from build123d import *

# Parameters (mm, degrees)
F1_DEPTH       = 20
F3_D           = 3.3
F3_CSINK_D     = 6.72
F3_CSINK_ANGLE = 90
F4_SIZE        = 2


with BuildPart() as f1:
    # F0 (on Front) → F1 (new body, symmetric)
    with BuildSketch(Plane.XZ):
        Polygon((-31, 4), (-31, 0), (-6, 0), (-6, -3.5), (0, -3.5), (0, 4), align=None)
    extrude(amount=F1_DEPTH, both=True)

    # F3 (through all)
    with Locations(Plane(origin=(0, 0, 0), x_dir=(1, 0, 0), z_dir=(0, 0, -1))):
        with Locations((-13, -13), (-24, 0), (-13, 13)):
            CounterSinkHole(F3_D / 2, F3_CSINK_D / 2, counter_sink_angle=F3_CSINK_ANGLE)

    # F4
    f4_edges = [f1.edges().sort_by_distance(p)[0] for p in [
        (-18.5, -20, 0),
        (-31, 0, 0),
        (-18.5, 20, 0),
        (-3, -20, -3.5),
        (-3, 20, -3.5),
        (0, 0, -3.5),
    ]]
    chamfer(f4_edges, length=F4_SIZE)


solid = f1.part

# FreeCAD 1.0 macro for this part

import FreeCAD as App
import Part
import Sketcher
from FreeCAD import Vector
Q = App.Units.Quantity


def edges_at(feature, points):
    """Names of the edges that pass closest to the given points."""
    edges = feature.Shape.Edges
    near = lambda p: min(range(len(edges)), key=lambda i: edges[i].distToShape(Part.Vertex(*p))[0])
    return sorted({f"Edge{near(p) + 1}" for p in points})

doc = App.newDocument("Part")
body = doc.addObject("PartDesign::Body", "Body")

sketch1 = body.newObject("Sketcher::SketchObject", "Sketch")
sketch1.AttachmentSupport = (doc.getObject("XZ_Plane"), [""])
sketch1.MapMode = "FlatFace"
sketch1.addGeometry(Part.LineSegment(Vector(-31, 4, 0), Vector(-31, 0, 0)), False)
sketch1.addGeometry(Part.LineSegment(Vector(-31, 0, 0), Vector(-6, 0, 0)), False)
sketch1.addGeometry(Part.LineSegment(Vector(-6, 0, 0), Vector(-6, -3.5, 0)), False)
sketch1.addGeometry(Part.LineSegment(Vector(-6, -3.5, 0), Vector(0, -3.5, 0)), False)
sketch1.addGeometry(Part.LineSegment(Vector(0, -3.5, 0), Vector(0, 4, 0)), False)
sketch1.addGeometry(Part.LineSegment(Vector(0, 4, 0), Vector(-31, 4, 0)), False)
sketch1.addConstraint(Sketcher.Constraint("Coincident", 0, 2, 1, 1))
sketch1.addConstraint(Sketcher.Constraint("Coincident", 1, 2, 2, 1))
sketch1.addConstraint(Sketcher.Constraint("Coincident", 2, 2, 3, 1))
sketch1.addConstraint(Sketcher.Constraint("Coincident", 3, 2, 4, 1))
sketch1.addConstraint(Sketcher.Constraint("Coincident", 4, 2, 5, 1))
sketch1.addConstraint(Sketcher.Constraint("Coincident", 5, 2, 0, 1))
sketch1.addConstraint(Sketcher.Constraint("Vertical", 0))
sketch1.addConstraint(Sketcher.Constraint("Horizontal", 1))
sketch1.addConstraint(Sketcher.Constraint("Vertical", 2))
sketch1.addConstraint(Sketcher.Constraint("Horizontal", 3))
sketch1.addConstraint(Sketcher.Constraint("Vertical", 4))
sketch1.addConstraint(Sketcher.Constraint("Horizontal", 5))
sketch1.addConstraint(Sketcher.Constraint("PointOnObject", 0, 2, -1))
sketch1.addConstraint(Sketcher.Constraint("PointOnObject", 3, 2, -2))
sketch1.addConstraint(Sketcher.Constraint("DistanceX", 1, 1, 1, 2, Q("25 mm")))
sketch1.addConstraint(Sketcher.Constraint("DistanceX", 3, 1, 3, 2, Q("6 mm")))
sketch1.addConstraint(Sketcher.Constraint("DistanceY", 0, 2, 0, 1, Q("4 mm")))
sketch1.addConstraint(Sketcher.Constraint("DistanceY", 2, 2, 2, 1, Q("3.5 mm")))
pad1 = body.newObject("PartDesign::Pad", "Pad")
pad1.Profile = sketch1
pad1.Length = 40
pad1.Midplane = True

sketch2 = body.newObject("Sketcher::SketchObject", "Sketch001")
sketch2.AttachmentSupport = (doc.getObject("XY_Plane"), [""])
sketch2.MapMode = "FlatFace"
sketch2.addGeometry(Part.Circle(Vector(-13, 13, 0), Vector(0, 0, 1), 1.65), False)
sketch2.addGeometry(Part.Circle(Vector(-24, 0, 0), Vector(0, 0, 1), 1.65), False)
sketch2.addGeometry(Part.Circle(Vector(-13, -13, 0), Vector(0, 0, 1), 1.65), False)
sketch2.addConstraint(Sketcher.Constraint("Equal", 0, 1))
sketch2.addConstraint(Sketcher.Constraint("Equal", 1, 2))
sketch2.addConstraint(Sketcher.Constraint("Symmetric", 0, 3, 2, 3, -1))
sketch2.addConstraint(Sketcher.Constraint("PointOnObject", 1, 3, -1))
sketch2.addConstraint(Sketcher.Constraint("Diameter", 0, Q("3.3 mm")))
sketch2.addConstraint(Sketcher.Constraint("DistanceX", 0, 3, -1, 1, Q("13 mm")))
sketch2.addConstraint(Sketcher.Constraint("DistanceY", -1, 1, 0, 3, Q("13 mm")))
sketch2.addConstraint(Sketcher.Constraint("DistanceX", 1, 3, -1, 1, Q("24 mm")))
doc.recompute()
hole = body.newObject("PartDesign::Hole", "Hole")
hole.Profile = sketch2
hole.ThreadType = "None"
hole.Diameter = 3.3
hole.DepthType = "ThroughAll"
hole.HoleCutType = "Countersink"
hole.HoleCutDiameter = 6.72
hole.HoleCutCountersinkAngle = 90
hole.Reversed = True
doc.recompute()

chamfer = body.newObject("PartDesign::Chamfer", "Chamfer")
chamfer.Base = (hole, edges_at(hole, [
    (-18.5, -20, 0),
    (-31, 0, 0),
    (-18.5, 20, 0),
    (-3, -20, -3.5),
    (-3, 20, -3.5),
    (0, 0, -3.5),
]))
chamfer.Size = 2

doc.recompute()
